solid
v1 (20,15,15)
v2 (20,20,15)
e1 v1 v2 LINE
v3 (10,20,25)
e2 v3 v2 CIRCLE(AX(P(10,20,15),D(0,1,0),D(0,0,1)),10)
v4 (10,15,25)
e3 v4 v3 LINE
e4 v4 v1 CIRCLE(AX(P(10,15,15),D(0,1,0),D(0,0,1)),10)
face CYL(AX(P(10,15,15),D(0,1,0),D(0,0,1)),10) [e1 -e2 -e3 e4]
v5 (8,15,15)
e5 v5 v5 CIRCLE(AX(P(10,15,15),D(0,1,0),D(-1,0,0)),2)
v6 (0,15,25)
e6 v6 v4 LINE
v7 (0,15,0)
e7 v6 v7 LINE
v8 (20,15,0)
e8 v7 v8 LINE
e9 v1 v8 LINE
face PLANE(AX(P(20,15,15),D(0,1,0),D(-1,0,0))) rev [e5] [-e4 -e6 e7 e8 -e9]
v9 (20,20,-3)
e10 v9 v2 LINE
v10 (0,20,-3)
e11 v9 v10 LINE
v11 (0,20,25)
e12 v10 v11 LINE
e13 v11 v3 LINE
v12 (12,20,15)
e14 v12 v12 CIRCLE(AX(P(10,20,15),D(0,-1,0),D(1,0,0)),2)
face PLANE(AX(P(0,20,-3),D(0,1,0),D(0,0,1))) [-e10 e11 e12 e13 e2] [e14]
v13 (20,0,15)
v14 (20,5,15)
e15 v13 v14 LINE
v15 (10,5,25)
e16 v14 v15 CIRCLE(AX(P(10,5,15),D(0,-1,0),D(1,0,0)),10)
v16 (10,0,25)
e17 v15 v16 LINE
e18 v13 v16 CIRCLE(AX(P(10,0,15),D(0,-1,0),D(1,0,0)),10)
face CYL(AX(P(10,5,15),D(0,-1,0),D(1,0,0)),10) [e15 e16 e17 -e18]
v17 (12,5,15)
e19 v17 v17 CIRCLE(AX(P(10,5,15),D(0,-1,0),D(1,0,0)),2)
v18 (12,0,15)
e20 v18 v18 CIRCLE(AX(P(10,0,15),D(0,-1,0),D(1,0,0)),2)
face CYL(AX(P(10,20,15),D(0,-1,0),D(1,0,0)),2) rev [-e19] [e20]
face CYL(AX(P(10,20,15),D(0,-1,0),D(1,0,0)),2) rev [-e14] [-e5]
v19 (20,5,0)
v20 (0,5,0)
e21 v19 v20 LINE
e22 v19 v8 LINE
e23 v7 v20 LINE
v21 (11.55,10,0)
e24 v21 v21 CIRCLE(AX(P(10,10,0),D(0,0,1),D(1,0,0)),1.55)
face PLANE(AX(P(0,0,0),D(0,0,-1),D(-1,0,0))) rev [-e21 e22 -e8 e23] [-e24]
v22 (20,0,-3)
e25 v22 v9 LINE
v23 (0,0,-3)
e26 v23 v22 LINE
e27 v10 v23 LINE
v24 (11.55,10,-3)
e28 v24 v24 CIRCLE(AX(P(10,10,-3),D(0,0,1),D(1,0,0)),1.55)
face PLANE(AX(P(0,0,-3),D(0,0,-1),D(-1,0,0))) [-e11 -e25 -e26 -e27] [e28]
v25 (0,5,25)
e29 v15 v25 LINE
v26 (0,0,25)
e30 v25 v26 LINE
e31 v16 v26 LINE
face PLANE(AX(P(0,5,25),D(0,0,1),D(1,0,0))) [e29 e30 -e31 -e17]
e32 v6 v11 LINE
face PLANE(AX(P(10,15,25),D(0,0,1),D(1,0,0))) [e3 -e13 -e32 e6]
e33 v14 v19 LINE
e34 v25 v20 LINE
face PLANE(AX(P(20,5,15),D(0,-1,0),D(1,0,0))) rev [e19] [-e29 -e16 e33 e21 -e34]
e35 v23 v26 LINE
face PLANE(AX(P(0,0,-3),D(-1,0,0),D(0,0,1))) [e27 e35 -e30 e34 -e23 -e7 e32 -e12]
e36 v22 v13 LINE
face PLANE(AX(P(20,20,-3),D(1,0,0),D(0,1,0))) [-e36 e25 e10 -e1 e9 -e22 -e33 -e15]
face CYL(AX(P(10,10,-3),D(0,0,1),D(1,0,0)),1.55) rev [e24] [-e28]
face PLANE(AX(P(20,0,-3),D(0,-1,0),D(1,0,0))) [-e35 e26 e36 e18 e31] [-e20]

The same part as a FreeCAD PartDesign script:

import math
import FreeCAD as App
import Part
import Sketcher
from FreeCAD import Vector


def add_polygon(sketch, points):
    """Adds a closed chain of lines whose ends are joined by coincident constraints."""
    first, n = sketch.GeometryCount, len(points)
    for a, b in zip(points, points[1:] + points[:1]):
        sketch.addGeometry(Part.LineSegment(App.Vector(*a, 0), App.Vector(*b, 0)), False)
    for i in range(n):
        sketch.addConstraint(Sketcher.Constraint("Coincident", first + i, 2, first + (i + 1) % n, 1))

doc = App.newDocument("Part")
body = doc.addObject("PartDesign::Body", "Body")

# Sketch on XY plane
sketch1 = body.newObject("Sketcher::SketchObject", "Sketch")
sketch1.AttachmentSupport = (doc.getObject("XY_Plane"), [""])
sketch1.MapMode = "FlatFace"
add_polygon(sketch1, [(0, 20), (0, 0), (20, 0), (20, 20)])  # lines 0-3
sketch1.addGeometry(Part.Circle(Vector(10, 10, 0), Vector(0, 0, 1), 1.6), False)  # 4
sketch1.addConstraint([
    Sketcher.Constraint("Vertical", 0),
    Sketcher.Constraint("Horizontal", 1),
    Sketcher.Constraint("Vertical", 2),
    Sketcher.Constraint("Horizontal", 3),
    Sketcher.Constraint("Coincident", 0, 2, -1, 1),
    Sketcher.Constraint("Equal", 3, 0),
    Sketcher.Constraint("Diameter", 4, 3.1),
    Sketcher.Constraint("DistanceX", 1, 1, 1, 2, 20.0),
    Sketcher.Constraint("DistanceX", -1, 1, 4, 3, 10.0),
    Sketcher.Constraint("DistanceY", -1, 1, 4, 3, 10.0),
])
pad1 = body.newObject("PartDesign::Pad", "Pad")
pad1.Profile = sketch1
pad1.Length = 3
pad1.Reversed = True

# Sketch on XY plane
sketch2 = body.newObject("Sketcher::SketchObject", "Sketch001")
sketch2.AttachmentSupport = (doc.getObject("XY_Plane"), [""])
sketch2.MapMode = "FlatFace"
add_polygon(sketch2, [(0, 5), (0, 0), (20, 0), (20, 5)])  # lines 0-3
add_polygon(sketch2, [(0, 20), (0, 15), (20, 15), (20, 20)])  # lines 4-7
sketch2.addConstraint([
    Sketcher.Constraint("Vertical", 0),
    Sketcher.Constraint("Horizontal", 1),
    Sketcher.Constraint("Vertical", 2),
    Sketcher.Constraint("Horizontal", 3),
    Sketcher.Constraint("Vertical", 4),
    Sketcher.Constraint("Horizontal", 5),
    Sketcher.Constraint("Vertical", 6),
    Sketcher.Constraint("Horizontal", 7),
    Sketcher.Constraint("Coincident", 0, 2, -1, 1),
    Sketcher.Constraint("PointOnObject", 4, 2, -2),
    Sketcher.Constraint("Vertical", 2, 2, 5, 2),
    Sketcher.Constraint("Equal", 2, 4),
    Sketcher.Constraint("DistanceX", 1, 1, 1, 2, 20.0),
    Sketcher.Constraint("DistanceY", 0, 2, 0, 1, 5.0),
    Sketcher.Constraint("DistanceY", -1, 1, 4, 2, 15.0),
])
pad2 = body.newObject("PartDesign::Pad", "Pad001")
pad2.Profile = sketch2
pad2.Length = 15

# Sketch on XZ plane
sketch3 = body.newObject("Sketcher::SketchObject", "Sketch002")
sketch3.AttachmentSupport = (doc.getObject("XZ_Plane"), [""])
sketch3.MapMode = "FlatFace"
sketch3.AttachmentOffset = App.Placement(Vector(0, 0, -20), App.Rotation())
sketch3.addGeometry([
    Part.LineSegment(Vector(20, 15, 0), Vector(0, 15, 0)),
    Part.LineSegment(Vector(0, 15, 0), Vector(0, 25, 0)),
    Part.LineSegment(Vector(0, 25, 0), Vector(10, 25, 0)),
    Part.ArcOfCircle(Part.Circle(Vector(10, 15, 0), Vector(0, 0, 1), 10), math.radians(0), math.radians(90)),
], False)
sketch3.addConstraint([
    Sketcher.Constraint("Coincident", 0, 2, 1, 1),
    Sketcher.Constraint("Coincident", 1, 2, 2, 1),
    Sketcher.Constraint("Tangent", 2, 2, 3, 2),
    Sketcher.Constraint("Coincident", 3, 1, 0, 1),
    Sketcher.Constraint("Horizontal", 0),
    Sketcher.Constraint("Vertical", 1),
    Sketcher.Constraint("Horizontal", 2),
    Sketcher.Constraint("PointOnObject", 0, 2, -2),
    Sketcher.Constraint("Horizontal", 3, 3, 0, 2),
    Sketcher.Constraint("Equal", 2, 1),
    Sketcher.Constraint("Radius", 3, 10.0),
    Sketcher.Constraint("DistanceY", -1, 1, 3, 3, 15.0),
])
pad3 = body.newObject("PartDesign::Pad", "Pad002")
pad3.Profile = sketch3
pad3.Length = 5

# Sketch on XZ plane
sketch4 = body.newObject("Sketcher::SketchObject", "Sketch003")
sketch4.AttachmentSupport = (doc.getObject("XZ_Plane"), [""])
sketch4.MapMode = "FlatFace"
sketch4.addGeometry([
    Part.LineSegment(Vector(0, 15, 0), Vector(20, 15, 0)),
    Part.ArcOfCircle(Part.Circle(Vector(10, 15, 0), Vector(0, 0, 1), 10), math.radians(0), math.radians(90)),
    Part.LineSegment(Vector(10, 25, 0), Vector(0, 25, 0)),
    Part.LineSegment(Vector(0, 25, 0), Vector(0, 15, 0)),
], False)
sketch4.addConstraint([
    Sketcher.Constraint("Coincident", 0, 2, 1, 1),
    Sketcher.Constraint("Tangent", 1, 2, 2, 1),
    Sketcher.Constraint("Coincident", 2, 2, 3, 1),
    Sketcher.Constraint("Coincident", 3, 2, 0, 1),
    Sketcher.Constraint("Horizontal", 0),
    Sketcher.Constraint("Horizontal", 2),
    Sketcher.Constraint("Vertical", 3),
    Sketcher.Constraint("PointOnObject", 2, 2, -2),
    Sketcher.Constraint("Horizontal", 1, 3, 0, 2),
    Sketcher.Constraint("Equal", 2, 3),
    Sketcher.Constraint("Radius", 1, 10.0),
    Sketcher.Constraint("DistanceY", -1, 1, 1, 3, 15.0),
])
pad4 = body.newObject("PartDesign::Pad", "Pad003")
pad4.Profile = sketch4
pad4.Length = 5
pad4.Reversed = True

# Sketch on XZ plane
sketch5 = body.newObject("Sketcher::SketchObject", "Sketch004")
sketch5.AttachmentSupport = (doc.getObject("XZ_Plane"), [""])
sketch5.MapMode = "FlatFace"
sketch5.addGeometry(Part.Circle(Vector(10, 15, 0), Vector(0, 0, 1), 2), False)
sketch5.addConstraint([
    Sketcher.Constraint("Diameter", 0, 4.0),
    Sketcher.Constraint("DistanceX", -1, 1, 0, 3, 10.0),
    Sketcher.Constraint("DistanceY", -1, 1, 0, 3, 15.0),
])
pocket1 = body.newObject("PartDesign::Pocket", "Pocket")
pocket1.Profile = sketch5
pocket1.Type = "ThroughAll"

doc.recompute()
